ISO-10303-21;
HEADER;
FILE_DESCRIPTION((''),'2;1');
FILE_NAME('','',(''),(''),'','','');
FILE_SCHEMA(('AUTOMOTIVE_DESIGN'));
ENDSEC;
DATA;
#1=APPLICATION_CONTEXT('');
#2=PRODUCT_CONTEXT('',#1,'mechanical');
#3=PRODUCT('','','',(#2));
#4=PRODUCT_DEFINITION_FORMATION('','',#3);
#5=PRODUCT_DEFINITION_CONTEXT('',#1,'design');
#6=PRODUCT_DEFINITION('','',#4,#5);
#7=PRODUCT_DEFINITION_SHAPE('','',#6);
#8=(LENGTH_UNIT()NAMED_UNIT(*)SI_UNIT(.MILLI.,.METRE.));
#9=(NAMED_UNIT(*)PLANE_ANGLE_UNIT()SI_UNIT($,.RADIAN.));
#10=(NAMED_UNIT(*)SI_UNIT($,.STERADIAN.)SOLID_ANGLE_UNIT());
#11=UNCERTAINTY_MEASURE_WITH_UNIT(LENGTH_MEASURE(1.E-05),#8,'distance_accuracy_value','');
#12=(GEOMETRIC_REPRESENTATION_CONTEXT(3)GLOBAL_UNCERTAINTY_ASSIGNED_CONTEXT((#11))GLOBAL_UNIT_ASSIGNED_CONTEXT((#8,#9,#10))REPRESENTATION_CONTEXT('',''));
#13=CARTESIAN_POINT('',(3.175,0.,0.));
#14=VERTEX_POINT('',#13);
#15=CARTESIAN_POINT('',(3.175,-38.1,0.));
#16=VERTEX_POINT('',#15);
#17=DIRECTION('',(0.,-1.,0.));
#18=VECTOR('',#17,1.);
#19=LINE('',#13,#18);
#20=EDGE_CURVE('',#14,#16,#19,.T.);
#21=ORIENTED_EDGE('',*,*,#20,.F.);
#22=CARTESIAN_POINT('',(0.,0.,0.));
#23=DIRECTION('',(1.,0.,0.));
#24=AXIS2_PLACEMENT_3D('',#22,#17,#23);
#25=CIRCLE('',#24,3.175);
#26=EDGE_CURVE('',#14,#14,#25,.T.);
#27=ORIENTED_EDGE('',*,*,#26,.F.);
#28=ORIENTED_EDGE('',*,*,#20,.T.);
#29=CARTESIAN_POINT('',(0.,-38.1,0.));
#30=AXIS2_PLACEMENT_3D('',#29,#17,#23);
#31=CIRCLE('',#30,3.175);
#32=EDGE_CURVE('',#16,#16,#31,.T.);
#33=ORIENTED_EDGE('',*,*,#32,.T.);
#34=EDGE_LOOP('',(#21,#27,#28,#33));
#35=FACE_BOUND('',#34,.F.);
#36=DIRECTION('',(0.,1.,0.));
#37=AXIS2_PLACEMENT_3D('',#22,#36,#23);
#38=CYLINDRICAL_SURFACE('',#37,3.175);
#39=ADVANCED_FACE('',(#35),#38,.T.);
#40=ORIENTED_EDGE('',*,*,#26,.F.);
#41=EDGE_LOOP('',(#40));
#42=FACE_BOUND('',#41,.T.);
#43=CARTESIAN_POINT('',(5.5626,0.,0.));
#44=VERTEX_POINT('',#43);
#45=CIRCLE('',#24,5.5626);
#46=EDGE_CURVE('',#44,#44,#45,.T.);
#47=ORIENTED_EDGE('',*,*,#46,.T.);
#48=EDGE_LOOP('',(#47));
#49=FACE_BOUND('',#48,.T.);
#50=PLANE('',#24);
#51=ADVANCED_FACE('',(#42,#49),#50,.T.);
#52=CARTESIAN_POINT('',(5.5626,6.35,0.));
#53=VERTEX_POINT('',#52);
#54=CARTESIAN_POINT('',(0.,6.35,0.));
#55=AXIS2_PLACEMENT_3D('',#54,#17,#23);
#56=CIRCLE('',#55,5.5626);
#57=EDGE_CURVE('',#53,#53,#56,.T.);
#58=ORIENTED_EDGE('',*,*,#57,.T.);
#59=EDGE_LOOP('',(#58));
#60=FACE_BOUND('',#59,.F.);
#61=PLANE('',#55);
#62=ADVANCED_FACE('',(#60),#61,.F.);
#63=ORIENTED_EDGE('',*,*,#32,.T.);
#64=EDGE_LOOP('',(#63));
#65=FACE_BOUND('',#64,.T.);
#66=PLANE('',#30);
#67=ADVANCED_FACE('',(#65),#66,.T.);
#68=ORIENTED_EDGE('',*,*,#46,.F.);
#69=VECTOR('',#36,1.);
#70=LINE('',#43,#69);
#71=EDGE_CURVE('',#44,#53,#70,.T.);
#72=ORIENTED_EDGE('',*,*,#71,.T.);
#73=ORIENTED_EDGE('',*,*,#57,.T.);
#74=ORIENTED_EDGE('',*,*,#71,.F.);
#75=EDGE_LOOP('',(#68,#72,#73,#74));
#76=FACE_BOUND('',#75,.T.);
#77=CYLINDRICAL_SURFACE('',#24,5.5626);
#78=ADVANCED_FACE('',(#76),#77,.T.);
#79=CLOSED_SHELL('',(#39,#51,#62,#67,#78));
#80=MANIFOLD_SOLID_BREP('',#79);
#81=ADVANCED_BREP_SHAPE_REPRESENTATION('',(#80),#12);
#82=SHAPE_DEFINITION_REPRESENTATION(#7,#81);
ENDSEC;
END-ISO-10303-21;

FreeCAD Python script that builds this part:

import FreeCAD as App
import Part
import Sketcher
from FreeCAD import Vector
Q = App.Units.Quantity

doc = App.newDocument("Part")
params = doc.addObject("Spreadsheet::Sheet", "Params")
for row, (alias, value) in enumerate([
    ("sketch1_diameter", "0.25 in"),
    ("pad1_length", "1.5 in"),
    ("sketch2_diameter", "0.438 in"),
    ("pad2_length", "0.25 in"),
], start=1):
    params.set(f"A{row}", alias)
    params.set(f"B{row}", "=" + value)
    params.setAlias(f"B{row}", alias)

body = doc.addObject("PartDesign::Body", "Body")

# Sketch on XZ plane
sketch1 = body.newObject("Sketcher::SketchObject", "Sketch")
sketch1.AttachmentSupport = (doc.getObject("XZ_Plane"), [""])
sketch1.MapMode = "FlatFace"
sketch1.addGeometry(Part.Circle(Vector(0, 0, 0), Vector(0, 0, 1), 3.2), False)
sketch1.addConstraint(Sketcher.Constraint("Coincident", 0, 3, -1, 1))
sketch1.addConstraint(Sketcher.Constraint("Diameter", 0, Q("0.25 in")))
sketch1.setExpression("Constraints[1]", "Params.sketch1_diameter")
pad1 = body.newObject("PartDesign::Pad", "Pad")
pad1.Profile = sketch1
pad1.setExpression("Length", "Params.pad1_length")

# Sketch on XZ plane
sketch2 = body.newObject("Sketcher::SketchObject", "Sketch001")
sketch2.AttachmentSupport = (doc.getObject("XZ_Plane"), [""])
sketch2.MapMode = "FlatFace"
sketch2.addGeometry(Part.Circle(Vector(0, 0, 0), Vector(0, 0, 1), 6), False)
sketch2.addConstraint(Sketcher.Constraint("Coincident", 0, 3, -1, 1))
sketch2.addConstraint(Sketcher.Constraint("Diameter", 0, Q("0.438 in")))
sketch2.setExpression("Constraints[1]", "Params.sketch2_diameter")
pad2 = body.newObject("PartDesign::Pad", "Pad001")
pad2.Profile = sketch2
pad2.setExpression("Length", "Params.pad2_length")
pad2.Reversed = True

doc.recompute()
